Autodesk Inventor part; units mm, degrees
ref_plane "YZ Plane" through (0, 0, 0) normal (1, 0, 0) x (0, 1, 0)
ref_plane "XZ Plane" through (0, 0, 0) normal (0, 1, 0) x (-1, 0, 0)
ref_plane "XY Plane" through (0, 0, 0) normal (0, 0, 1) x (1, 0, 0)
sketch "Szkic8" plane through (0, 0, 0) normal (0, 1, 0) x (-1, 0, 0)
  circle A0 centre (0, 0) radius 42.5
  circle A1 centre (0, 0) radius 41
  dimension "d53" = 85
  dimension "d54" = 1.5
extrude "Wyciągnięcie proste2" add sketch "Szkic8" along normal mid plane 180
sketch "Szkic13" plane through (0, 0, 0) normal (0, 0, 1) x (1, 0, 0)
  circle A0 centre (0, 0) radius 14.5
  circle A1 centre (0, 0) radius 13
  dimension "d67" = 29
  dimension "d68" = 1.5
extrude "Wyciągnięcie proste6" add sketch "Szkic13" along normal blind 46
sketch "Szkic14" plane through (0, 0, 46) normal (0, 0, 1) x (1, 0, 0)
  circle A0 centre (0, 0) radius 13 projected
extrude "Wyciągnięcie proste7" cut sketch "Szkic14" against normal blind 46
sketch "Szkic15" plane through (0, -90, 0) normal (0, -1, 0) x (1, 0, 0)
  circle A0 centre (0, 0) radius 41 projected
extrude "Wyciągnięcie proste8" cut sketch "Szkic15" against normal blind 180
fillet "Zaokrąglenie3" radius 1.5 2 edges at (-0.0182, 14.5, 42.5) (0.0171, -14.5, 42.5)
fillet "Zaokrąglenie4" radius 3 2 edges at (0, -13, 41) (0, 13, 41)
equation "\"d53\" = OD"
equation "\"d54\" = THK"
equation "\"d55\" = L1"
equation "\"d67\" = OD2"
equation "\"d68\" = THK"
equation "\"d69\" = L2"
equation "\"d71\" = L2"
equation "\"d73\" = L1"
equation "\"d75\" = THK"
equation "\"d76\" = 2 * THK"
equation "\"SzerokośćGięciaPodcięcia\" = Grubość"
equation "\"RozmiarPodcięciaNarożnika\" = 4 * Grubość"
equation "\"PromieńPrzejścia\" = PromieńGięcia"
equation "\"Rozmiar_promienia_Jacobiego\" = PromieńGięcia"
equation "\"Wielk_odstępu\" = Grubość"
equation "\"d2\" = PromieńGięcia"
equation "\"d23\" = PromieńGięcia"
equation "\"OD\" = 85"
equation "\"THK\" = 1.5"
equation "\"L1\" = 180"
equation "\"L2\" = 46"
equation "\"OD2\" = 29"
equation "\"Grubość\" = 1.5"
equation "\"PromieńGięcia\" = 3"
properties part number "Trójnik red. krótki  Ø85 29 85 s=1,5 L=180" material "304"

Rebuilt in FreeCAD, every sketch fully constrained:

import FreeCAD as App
import Part
import Sketcher
from FreeCAD import Vector


def edges_at(feature, points):
    """Names of the edges that pass closest to the given points."""
    edges = feature.Shape.Edges
    near = lambda p: min(range(len(edges)), key=lambda i: edges[i].distToShape(Part.Vertex(*p))[0])
    return sorted({f"Edge{near(p) + 1}" for p in points})

doc = App.newDocument("Part")
body = doc.addObject("PartDesign::Body", "Body")

sketch1 = body.newObject("Sketcher::SketchObject", "Sketch")
sketch1.AttachmentSupport = (doc.getObject("XZ_Plane"), [""])
sketch1.MapMode = "FlatFace"
sketch1.addGeometry([
    Part.Circle(Vector(0, 0, 0), Vector(0, 0, 1), 42),
    Part.Circle(Vector(0, 0, 0), Vector(0, 0, 1), 41),
], False)
sketch1.addConstraint([
    Sketcher.Constraint("Coincident", 0, 3, -1, 1),
    Sketcher.Constraint("Coincident", 1, 3, -1, 1),
    Sketcher.Constraint("Diameter", 0, 85.0),
    Sketcher.Constraint("Diameter", 1, 82.0),
])
pad1 = body.newObject("PartDesign::Pad", "Pad")
pad1.Profile = sketch1
pad1.Length = 180
pad1.Midplane = True

sketch2 = body.newObject("Sketcher::SketchObject", "Sketch001")
sketch2.AttachmentSupport = (doc.getObject("XY_Plane"), [""])
sketch2.MapMode = "FlatFace"
sketch2.addGeometry([
    Part.Circle(Vector(0, 0, 0), Vector(0, 0, 1), 14),
    Part.Circle(Vector(0, 0, 0), Vector(0, 0, 1), 13),
], False)
sketch2.addConstraint([
    Sketcher.Constraint("Coincident", 0, 3, -1, 1),
    Sketcher.Constraint("Coincident", 1, 3, -1, 1),
    Sketcher.Constraint("Diameter", 0, 29.0),
    Sketcher.Constraint("Diameter", 1, 26.0),
])
pad2 = body.newObject("PartDesign::Pad", "Pad001")
pad2.Profile = sketch2
pad2.Length = 46

sketch3 = body.newObject("Sketcher::SketchObject", "Sketch002")
sketch3.AttachmentSupport = (doc.getObject("XY_Plane"), [""])
sketch3.MapMode = "FlatFace"
sketch3.AttachmentOffset = App.Placement(Vector(0, 0, 46), App.Rotation())
sketch3.addGeometry(Part.Circle(Vector(0, 0, 0), Vector(0, 0, 1), 13), False)
sketch3.addConstraint([
    Sketcher.Constraint("Coincident", 0, 3, -1, 1),
    Sketcher.Constraint("Diameter", 0, 26.0),
])
pocket1 = body.newObject("PartDesign::Pocket", "Pocket")
pocket1.Profile = sketch3
pocket1.Length = 46

sketch4 = body.newObject("Sketcher::SketchObject", "Sketch003")
sketch4.AttachmentSupport = (doc.getObject("XZ_Plane"), [""])
sketch4.MapMode = "FlatFace"
sketch4.AttachmentOffset = App.Placement(Vector(0, 0, 90), App.Rotation())
sketch4.addGeometry(Part.Circle(Vector(0, 0, 0), Vector(0, 0, 1), 41), False)
sketch4.addConstraint([
    Sketcher.Constraint("Coincident", 0, 3, -1, 1),
    Sketcher.Constraint("Diameter", 0, 82.0),
])
pocket2 = body.newObject("PartDesign::Pocket", "Pocket001")
pocket2.Profile = sketch4
pocket2.Length = 180
doc.recompute()

fillet = body.newObject("PartDesign::Fillet", "Fillet")
fillet.Base = (pocket2, edges_at(pocket2, [(-0.018, 14.5, 42.5), (0.017, -14.5, 42.5)]))
fillet.Radius = 1.5
doc.recompute()

fillet2 = body.newObject("PartDesign::Fillet", "Fillet001")
fillet2.Base = (fillet, edges_at(fillet, [(0, -13, 41), (0, 13, 41)]))
fillet2.Radius = 3

doc.recompute()
